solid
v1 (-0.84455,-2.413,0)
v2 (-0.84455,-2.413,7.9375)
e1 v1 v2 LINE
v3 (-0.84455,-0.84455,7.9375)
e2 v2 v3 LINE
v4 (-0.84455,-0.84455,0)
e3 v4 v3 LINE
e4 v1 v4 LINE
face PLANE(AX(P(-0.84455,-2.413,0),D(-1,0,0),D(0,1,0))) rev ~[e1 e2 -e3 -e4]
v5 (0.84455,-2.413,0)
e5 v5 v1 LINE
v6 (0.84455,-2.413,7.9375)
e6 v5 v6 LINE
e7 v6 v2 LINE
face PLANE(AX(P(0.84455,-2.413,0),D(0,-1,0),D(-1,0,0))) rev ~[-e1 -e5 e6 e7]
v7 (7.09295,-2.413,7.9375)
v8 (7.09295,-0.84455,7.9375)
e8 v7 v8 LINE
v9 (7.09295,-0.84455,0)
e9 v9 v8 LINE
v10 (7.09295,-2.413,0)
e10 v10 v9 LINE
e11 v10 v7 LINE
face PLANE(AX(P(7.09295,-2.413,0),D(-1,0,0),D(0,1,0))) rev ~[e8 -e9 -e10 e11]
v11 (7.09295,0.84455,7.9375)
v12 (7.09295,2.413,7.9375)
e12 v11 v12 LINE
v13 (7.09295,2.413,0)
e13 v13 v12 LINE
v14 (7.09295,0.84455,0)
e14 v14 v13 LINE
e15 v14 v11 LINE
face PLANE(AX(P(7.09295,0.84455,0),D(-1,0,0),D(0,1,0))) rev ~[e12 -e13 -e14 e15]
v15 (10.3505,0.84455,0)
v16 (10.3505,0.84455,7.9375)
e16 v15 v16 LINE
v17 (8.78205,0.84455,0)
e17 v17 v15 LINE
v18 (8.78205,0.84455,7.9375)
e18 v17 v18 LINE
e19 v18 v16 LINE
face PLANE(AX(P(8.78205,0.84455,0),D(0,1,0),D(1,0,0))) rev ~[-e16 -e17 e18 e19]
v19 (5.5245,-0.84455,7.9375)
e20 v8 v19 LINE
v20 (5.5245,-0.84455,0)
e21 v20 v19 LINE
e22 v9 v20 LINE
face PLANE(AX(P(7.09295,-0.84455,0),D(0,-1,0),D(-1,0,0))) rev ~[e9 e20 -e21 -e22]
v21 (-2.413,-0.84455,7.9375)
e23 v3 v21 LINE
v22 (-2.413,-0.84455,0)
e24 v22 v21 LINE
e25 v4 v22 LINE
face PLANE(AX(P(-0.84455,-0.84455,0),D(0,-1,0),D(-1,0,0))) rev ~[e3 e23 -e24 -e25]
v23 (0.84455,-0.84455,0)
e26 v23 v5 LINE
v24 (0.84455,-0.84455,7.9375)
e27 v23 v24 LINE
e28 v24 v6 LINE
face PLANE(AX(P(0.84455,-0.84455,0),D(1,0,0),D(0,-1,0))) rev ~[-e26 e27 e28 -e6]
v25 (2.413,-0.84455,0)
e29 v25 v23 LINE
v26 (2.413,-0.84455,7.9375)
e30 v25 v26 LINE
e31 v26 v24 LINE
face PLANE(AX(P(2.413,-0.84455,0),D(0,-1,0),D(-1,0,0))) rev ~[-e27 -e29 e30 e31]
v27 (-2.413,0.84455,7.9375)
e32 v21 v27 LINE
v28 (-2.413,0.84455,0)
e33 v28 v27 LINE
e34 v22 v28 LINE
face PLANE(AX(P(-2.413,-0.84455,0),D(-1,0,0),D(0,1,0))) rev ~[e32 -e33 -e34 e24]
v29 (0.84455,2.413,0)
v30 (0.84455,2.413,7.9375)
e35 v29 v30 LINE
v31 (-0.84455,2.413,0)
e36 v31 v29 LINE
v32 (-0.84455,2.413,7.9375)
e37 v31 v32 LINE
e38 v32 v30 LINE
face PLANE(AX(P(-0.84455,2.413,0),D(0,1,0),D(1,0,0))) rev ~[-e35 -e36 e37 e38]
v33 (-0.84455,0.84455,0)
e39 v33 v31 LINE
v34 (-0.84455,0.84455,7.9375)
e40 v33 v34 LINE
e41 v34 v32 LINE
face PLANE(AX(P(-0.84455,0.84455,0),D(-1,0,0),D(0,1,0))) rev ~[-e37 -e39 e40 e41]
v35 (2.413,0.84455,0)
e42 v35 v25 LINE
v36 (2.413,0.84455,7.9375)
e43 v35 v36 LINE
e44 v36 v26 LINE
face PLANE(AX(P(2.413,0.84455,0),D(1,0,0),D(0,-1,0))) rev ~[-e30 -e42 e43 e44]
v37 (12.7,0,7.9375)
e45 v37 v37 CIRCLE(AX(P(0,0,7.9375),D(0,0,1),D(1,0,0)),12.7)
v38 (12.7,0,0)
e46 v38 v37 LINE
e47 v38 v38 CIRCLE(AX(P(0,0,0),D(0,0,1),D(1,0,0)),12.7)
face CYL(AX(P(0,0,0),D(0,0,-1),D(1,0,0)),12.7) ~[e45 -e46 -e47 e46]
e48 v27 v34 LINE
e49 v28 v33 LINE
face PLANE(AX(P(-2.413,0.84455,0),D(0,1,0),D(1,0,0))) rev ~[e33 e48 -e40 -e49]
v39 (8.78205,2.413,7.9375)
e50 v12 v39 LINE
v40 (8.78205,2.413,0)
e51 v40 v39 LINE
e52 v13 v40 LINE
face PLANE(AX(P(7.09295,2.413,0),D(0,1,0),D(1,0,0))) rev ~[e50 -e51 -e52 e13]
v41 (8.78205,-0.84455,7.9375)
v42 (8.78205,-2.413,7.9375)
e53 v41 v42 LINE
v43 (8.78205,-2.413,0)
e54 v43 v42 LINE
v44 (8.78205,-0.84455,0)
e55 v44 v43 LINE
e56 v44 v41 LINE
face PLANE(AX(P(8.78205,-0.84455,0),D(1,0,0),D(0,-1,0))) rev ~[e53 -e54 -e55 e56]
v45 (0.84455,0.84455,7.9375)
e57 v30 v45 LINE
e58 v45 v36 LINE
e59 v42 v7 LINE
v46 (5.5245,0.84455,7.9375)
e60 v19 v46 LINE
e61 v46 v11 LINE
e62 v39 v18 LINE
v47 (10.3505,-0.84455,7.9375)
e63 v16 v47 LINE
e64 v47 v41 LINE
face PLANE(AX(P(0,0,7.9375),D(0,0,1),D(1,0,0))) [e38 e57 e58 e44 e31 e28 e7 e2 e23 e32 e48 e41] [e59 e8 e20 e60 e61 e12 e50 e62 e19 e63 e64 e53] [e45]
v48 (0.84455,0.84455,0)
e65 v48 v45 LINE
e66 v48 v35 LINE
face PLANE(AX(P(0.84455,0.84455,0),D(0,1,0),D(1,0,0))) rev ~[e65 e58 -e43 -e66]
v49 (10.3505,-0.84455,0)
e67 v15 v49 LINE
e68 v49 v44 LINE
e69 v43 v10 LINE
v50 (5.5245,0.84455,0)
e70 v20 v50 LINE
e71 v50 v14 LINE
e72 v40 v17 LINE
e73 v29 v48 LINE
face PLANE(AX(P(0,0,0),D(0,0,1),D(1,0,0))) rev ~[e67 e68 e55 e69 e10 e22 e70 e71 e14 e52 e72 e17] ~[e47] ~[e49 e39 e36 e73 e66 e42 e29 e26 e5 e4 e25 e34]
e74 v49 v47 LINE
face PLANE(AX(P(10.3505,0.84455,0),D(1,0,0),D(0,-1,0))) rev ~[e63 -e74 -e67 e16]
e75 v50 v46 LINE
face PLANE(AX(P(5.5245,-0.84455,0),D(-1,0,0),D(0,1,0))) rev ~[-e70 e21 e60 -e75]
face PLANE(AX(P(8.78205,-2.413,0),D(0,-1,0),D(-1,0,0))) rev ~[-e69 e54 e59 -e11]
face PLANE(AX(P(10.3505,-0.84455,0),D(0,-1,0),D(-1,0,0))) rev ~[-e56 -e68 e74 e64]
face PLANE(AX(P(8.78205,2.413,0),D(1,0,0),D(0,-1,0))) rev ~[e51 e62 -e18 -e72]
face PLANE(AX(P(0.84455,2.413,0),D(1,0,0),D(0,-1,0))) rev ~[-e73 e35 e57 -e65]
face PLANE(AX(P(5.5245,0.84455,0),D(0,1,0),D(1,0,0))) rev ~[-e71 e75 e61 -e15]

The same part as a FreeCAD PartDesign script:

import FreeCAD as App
import Part
import Sketcher
from FreeCAD import Vector
Q = App.Units.Quantity

doc = App.newDocument("Part")
body = doc.addObject("PartDesign::Body", "Body")

sketch1 = doc.addObject("Sketcher::SketchObject", "Sketch")
body.addObject(sketch1)
sketch1.AttachmentSupport = (doc.XY_Plane, [""])
sketch1.MapMode = "FlatFace"
sketch1.addGeometry(Part.Circle(Vector(0, 0, 0), Vector(0, 0, 1), 12.7), False)
sketch1.addGeometry(Part.LineSegment(Vector(2.413, -0.84455, 0), Vector(0.84455, -0.84455, 0)), False)
sketch1.addGeometry(Part.LineSegment(Vector(0.84455, -0.84455, 0), Vector(0.84455, -2.413, 0)), False)
sketch1.addGeometry(Part.LineSegment(Vector(0.84455, -2.413, 0), Vector(-0.84455, -2.413, 0)), False)
sketch1.addGeometry(Part.LineSegment(Vector(-0.84455, -2.413, 0), Vector(-0.84455, -0.84455, 0)), False)
sketch1.addGeometry(Part.LineSegment(Vector(-0.84455, -0.84455, 0), Vector(-2.413, -0.84455, 0)), False)
sketch1.addGeometry(Part.LineSegment(Vector(-2.413, -0.84455, 0), Vector(-2.413, 0.84455, 0)), False)
sketch1.addGeometry(Part.LineSegment(Vector(-2.413, 0.84455, 0), Vector(-0.84455, 0.84455, 0)), False)
sketch1.addGeometry(Part.LineSegment(Vector(-0.84455, 0.84455, 0), Vector(-0.84455, 2.413, 0)), False)
sketch1.addGeometry(Part.LineSegment(Vector(-0.84455, 2.413, 0), Vector(0.84455, 2.413, 0)), False)
sketch1.addGeometry(Part.LineSegment(Vector(0.84455, 2.413, 0), Vector(0.84455, 0.84455, 0)), False)
sketch1.addGeometry(Part.LineSegment(Vector(0.84455, 0.84455, 0), Vector(2.413, 0.84455, 0)), False)
sketch1.addGeometry(Part.LineSegment(Vector(2.413, 0.84455, 0), Vector(2.413, -0.84455, 0)), False)
sketch1.addGeometry(Part.LineSegment(Vector(10.3505, -0.84455, 0), Vector(8.78205, -0.84455, 0)), False)
sketch1.addGeometry(Part.LineSegment(Vector(8.78205, -0.84455, 0), Vector(8.78205, -2.413, 0)), False)
sketch1.addGeometry(Part.LineSegment(Vector(8.78205, -2.413, 0), Vector(7.09295, -2.413, 0)), False)
sketch1.addGeometry(Part.LineSegment(Vector(7.09295, -2.413, 0), Vector(7.09295, -0.84455, 0)), False)
sketch1.addGeometry(Part.LineSegment(Vector(7.09295, -0.84455, 0), Vector(5.5245, -0.84455, 0)), False)
sketch1.addGeometry(Part.LineSegment(Vector(5.5245, -0.84455, 0), Vector(5.5245, 0.84455, 0)), False)
sketch1.addGeometry(Part.LineSegment(Vector(5.5245, 0.84455, 0), Vector(7.09295, 0.84455, 0)), False)
sketch1.addGeometry(Part.LineSegment(Vector(7.09295, 0.84455, 0), Vector(7.09295, 2.413, 0)), False)
sketch1.addGeometry(Part.LineSegment(Vector(7.09295, 2.413, 0), Vector(8.78205, 2.413, 0)), False)
sketch1.addGeometry(Part.LineSegment(Vector(8.78205, 2.413, 0), Vector(8.78205, 0.84455, 0)), False)
sketch1.addGeometry(Part.LineSegment(Vector(8.78205, 0.84455, 0), Vector(10.3505, 0.84455, 0)), False)
sketch1.addGeometry(Part.LineSegment(Vector(10.3505, 0.84455, 0), Vector(10.3505, -0.84455, 0)), False)
sketch1.addConstraint(Sketcher.Constraint("Coincident", 1, 2, 2, 1))
sketch1.addConstraint(Sketcher.Constraint("Coincident", 2, 2, 3, 1))
sketch1.addConstraint(Sketcher.Constraint("Coincident", 3, 2, 4, 1))
sketch1.addConstraint(Sketcher.Constraint("Coincident", 4, 2, 5, 1))
sketch1.addConstraint(Sketcher.Constraint("Coincident", 5, 2, 6, 1))
sketch1.addConstraint(Sketcher.Constraint("Coincident", 6, 2, 7, 1))
sketch1.addConstraint(Sketcher.Constraint("Coincident", 7, 2, 8, 1))
sketch1.addConstraint(Sketcher.Constraint("Coincident", 8, 2, 9, 1))
sketch1.addConstraint(Sketcher.Constraint("Coincident", 9, 2, 10, 1))
sketch1.addConstraint(Sketcher.Constraint("Coincident", 10, 2, 11, 1))
sketch1.addConstraint(Sketcher.Constraint("Coincident", 11, 2, 12, 1))
sketch1.addConstraint(Sketcher.Constraint("Coincident", 12, 2, 1, 1))
sketch1.addConstraint(Sketcher.Constraint("Coincident", 13, 2, 14, 1))
sketch1.addConstraint(Sketcher.Constraint("Coincident", 14, 2, 15, 1))
sketch1.addConstraint(Sketcher.Constraint("Coincident", 15, 2, 16, 1))
sketch1.addConstraint(Sketcher.Constraint("Coincident", 16, 2, 17, 1))
sketch1.addConstraint(Sketcher.Constraint("Coincident", 17, 2, 18, 1))
sketch1.addConstraint(Sketcher.Constraint("Coincident", 18, 2, 19, 1))
sketch1.addConstraint(Sketcher.Constraint("Coincident", 19, 2, 20, 1))
sketch1.addConstraint(Sketcher.Constraint("Coincident", 20, 2, 21, 1))
sketch1.addConstraint(Sketcher.Constraint("Coincident", 21, 2, 22, 1))
sketch1.addConstraint(Sketcher.Constraint("Coincident", 22, 2, 23, 1))
sketch1.addConstraint(Sketcher.Constraint("Coincident", 23, 2, 24, 1))
sketch1.addConstraint(Sketcher.Constraint("Coincident", 24, 2, 13, 1))
sketch1.addConstraint(Sketcher.Constraint("Horizontal", 1))
sketch1.addConstraint(Sketcher.Constraint("Vertical", 2))
sketch1.addConstraint(Sketcher.Constraint("Horizontal", 3))
sketch1.addConstraint(Sketcher.Constraint("Vertical", 4))
sketch1.addConstraint(Sketcher.Constraint("Horizontal", 5))
sketch1.addConstraint(Sketcher.Constraint("Vertical", 6))
sketch1.addConstraint(Sketcher.Constraint("Horizontal", 7))
sketch1.addConstraint(Sketcher.Constraint("Vertical", 8))
sketch1.addConstraint(Sketcher.Constraint("Horizontal", 9))
sketch1.addConstraint(Sketcher.Constraint("Vertical", 10))
sketch1.addConstraint(Sketcher.Constraint("Horizontal", 11))
sketch1.addConstraint(Sketcher.Constraint("Vertical", 12))
sketch1.addConstraint(Sketcher.Constraint("Horizontal", 13))
sketch1.addConstraint(Sketcher.Constraint("Vertical", 14))
sketch1.addConstraint(Sketcher.Constraint("Horizontal", 15))
sketch1.addConstraint(Sketcher.Constraint("Vertical", 16))
sketch1.addConstraint(Sketcher.Constraint("Horizontal", 17))
sketch1.addConstraint(Sketcher.Constraint("Vertical", 18))
sketch1.addConstraint(Sketcher.Constraint("Horizontal", 19))
sketch1.addConstraint(Sketcher.Constraint("Vertical", 20))
sketch1.addConstraint(Sketcher.Constraint("Horizontal", 21))
sketch1.addConstraint(Sketcher.Constraint("Vertical", 22))
sketch1.addConstraint(Sketcher.Constraint("Horizontal", 23))
sketch1.addConstraint(Sketcher.Constraint("Vertical", 24))
sketch1.addConstraint(Sketcher.Constraint("Coincident", 0, 3, -1, 1))
sketch1.addConstraint(Sketcher.Constraint("Symmetric", 1, 2, 7, 2, -1, 1))
sketch1.addConstraint(Sketcher.Constraint("Symmetric", 3, 2, 9, 2, -1, 1))
sketch1.addConstraint(Sketcher.Constraint("Symmetric", 5, 2, 11, 2, -1, 1))
sketch1.addConstraint(Sketcher.Constraint("Symmetric", 1, 2, 4, 2, -2))
sketch1.addConstraint(Sketcher.Constraint("Symmetric", 16, 2, 19, 2, -1))
sketch1.addConstraint(Sketcher.Constraint("Symmetric", 14, 2, 21, 2, -1))
sketch1.addConstraint(Sketcher.Constraint("Horizontal", 12, 2, 13, 2))
sketch1.addConstraint(Sketcher.Constraint("Horizontal", 3, 2, 14, 2))
sketch1.addConstraint(Sketcher.Constraint("Horizontal", 13, 2, 16, 2))
sketch1.addConstraint(Sketcher.Constraint("Horizontal", 19, 2, 22, 2))
sketch1.addConstraint(Sketcher.Constraint("Equal", 11, 13))
sketch1.addConstraint(Sketcher.Constraint("Equal", 9, 15))
sketch1.addConstraint(Sketcher.Constraint("Equal", 13, 17))
sketch1.addConstraint(Sketcher.Constraint("Equal", 23, 2))
sketch1.addConstraint(Sketcher.Constraint("Equal", 21, 6))
sketch1.addConstraint(Sketcher.Constraint("Diameter", 0, Q("1 in")))
sketch1.addConstraint(Sketcher.Constraint("DistanceX", 3, 2, 3, 1, Q("0.0665 in")))
sketch1.addConstraint(Sketcher.Constraint("DistanceY", 2, 2, -1, 1, Q("0.095 in")))
sketch1.addConstraint(Sketcher.Constraint("DistanceX", 1, 2, 13, 2, Q("0.3125 in")))
pad1 = doc.addObject("PartDesign::Pad", "Pad")
body.addObject(pad1)
pad1.Profile = sketch1
pad1.Length = Q("0.3125 in")

doc.recompute()
